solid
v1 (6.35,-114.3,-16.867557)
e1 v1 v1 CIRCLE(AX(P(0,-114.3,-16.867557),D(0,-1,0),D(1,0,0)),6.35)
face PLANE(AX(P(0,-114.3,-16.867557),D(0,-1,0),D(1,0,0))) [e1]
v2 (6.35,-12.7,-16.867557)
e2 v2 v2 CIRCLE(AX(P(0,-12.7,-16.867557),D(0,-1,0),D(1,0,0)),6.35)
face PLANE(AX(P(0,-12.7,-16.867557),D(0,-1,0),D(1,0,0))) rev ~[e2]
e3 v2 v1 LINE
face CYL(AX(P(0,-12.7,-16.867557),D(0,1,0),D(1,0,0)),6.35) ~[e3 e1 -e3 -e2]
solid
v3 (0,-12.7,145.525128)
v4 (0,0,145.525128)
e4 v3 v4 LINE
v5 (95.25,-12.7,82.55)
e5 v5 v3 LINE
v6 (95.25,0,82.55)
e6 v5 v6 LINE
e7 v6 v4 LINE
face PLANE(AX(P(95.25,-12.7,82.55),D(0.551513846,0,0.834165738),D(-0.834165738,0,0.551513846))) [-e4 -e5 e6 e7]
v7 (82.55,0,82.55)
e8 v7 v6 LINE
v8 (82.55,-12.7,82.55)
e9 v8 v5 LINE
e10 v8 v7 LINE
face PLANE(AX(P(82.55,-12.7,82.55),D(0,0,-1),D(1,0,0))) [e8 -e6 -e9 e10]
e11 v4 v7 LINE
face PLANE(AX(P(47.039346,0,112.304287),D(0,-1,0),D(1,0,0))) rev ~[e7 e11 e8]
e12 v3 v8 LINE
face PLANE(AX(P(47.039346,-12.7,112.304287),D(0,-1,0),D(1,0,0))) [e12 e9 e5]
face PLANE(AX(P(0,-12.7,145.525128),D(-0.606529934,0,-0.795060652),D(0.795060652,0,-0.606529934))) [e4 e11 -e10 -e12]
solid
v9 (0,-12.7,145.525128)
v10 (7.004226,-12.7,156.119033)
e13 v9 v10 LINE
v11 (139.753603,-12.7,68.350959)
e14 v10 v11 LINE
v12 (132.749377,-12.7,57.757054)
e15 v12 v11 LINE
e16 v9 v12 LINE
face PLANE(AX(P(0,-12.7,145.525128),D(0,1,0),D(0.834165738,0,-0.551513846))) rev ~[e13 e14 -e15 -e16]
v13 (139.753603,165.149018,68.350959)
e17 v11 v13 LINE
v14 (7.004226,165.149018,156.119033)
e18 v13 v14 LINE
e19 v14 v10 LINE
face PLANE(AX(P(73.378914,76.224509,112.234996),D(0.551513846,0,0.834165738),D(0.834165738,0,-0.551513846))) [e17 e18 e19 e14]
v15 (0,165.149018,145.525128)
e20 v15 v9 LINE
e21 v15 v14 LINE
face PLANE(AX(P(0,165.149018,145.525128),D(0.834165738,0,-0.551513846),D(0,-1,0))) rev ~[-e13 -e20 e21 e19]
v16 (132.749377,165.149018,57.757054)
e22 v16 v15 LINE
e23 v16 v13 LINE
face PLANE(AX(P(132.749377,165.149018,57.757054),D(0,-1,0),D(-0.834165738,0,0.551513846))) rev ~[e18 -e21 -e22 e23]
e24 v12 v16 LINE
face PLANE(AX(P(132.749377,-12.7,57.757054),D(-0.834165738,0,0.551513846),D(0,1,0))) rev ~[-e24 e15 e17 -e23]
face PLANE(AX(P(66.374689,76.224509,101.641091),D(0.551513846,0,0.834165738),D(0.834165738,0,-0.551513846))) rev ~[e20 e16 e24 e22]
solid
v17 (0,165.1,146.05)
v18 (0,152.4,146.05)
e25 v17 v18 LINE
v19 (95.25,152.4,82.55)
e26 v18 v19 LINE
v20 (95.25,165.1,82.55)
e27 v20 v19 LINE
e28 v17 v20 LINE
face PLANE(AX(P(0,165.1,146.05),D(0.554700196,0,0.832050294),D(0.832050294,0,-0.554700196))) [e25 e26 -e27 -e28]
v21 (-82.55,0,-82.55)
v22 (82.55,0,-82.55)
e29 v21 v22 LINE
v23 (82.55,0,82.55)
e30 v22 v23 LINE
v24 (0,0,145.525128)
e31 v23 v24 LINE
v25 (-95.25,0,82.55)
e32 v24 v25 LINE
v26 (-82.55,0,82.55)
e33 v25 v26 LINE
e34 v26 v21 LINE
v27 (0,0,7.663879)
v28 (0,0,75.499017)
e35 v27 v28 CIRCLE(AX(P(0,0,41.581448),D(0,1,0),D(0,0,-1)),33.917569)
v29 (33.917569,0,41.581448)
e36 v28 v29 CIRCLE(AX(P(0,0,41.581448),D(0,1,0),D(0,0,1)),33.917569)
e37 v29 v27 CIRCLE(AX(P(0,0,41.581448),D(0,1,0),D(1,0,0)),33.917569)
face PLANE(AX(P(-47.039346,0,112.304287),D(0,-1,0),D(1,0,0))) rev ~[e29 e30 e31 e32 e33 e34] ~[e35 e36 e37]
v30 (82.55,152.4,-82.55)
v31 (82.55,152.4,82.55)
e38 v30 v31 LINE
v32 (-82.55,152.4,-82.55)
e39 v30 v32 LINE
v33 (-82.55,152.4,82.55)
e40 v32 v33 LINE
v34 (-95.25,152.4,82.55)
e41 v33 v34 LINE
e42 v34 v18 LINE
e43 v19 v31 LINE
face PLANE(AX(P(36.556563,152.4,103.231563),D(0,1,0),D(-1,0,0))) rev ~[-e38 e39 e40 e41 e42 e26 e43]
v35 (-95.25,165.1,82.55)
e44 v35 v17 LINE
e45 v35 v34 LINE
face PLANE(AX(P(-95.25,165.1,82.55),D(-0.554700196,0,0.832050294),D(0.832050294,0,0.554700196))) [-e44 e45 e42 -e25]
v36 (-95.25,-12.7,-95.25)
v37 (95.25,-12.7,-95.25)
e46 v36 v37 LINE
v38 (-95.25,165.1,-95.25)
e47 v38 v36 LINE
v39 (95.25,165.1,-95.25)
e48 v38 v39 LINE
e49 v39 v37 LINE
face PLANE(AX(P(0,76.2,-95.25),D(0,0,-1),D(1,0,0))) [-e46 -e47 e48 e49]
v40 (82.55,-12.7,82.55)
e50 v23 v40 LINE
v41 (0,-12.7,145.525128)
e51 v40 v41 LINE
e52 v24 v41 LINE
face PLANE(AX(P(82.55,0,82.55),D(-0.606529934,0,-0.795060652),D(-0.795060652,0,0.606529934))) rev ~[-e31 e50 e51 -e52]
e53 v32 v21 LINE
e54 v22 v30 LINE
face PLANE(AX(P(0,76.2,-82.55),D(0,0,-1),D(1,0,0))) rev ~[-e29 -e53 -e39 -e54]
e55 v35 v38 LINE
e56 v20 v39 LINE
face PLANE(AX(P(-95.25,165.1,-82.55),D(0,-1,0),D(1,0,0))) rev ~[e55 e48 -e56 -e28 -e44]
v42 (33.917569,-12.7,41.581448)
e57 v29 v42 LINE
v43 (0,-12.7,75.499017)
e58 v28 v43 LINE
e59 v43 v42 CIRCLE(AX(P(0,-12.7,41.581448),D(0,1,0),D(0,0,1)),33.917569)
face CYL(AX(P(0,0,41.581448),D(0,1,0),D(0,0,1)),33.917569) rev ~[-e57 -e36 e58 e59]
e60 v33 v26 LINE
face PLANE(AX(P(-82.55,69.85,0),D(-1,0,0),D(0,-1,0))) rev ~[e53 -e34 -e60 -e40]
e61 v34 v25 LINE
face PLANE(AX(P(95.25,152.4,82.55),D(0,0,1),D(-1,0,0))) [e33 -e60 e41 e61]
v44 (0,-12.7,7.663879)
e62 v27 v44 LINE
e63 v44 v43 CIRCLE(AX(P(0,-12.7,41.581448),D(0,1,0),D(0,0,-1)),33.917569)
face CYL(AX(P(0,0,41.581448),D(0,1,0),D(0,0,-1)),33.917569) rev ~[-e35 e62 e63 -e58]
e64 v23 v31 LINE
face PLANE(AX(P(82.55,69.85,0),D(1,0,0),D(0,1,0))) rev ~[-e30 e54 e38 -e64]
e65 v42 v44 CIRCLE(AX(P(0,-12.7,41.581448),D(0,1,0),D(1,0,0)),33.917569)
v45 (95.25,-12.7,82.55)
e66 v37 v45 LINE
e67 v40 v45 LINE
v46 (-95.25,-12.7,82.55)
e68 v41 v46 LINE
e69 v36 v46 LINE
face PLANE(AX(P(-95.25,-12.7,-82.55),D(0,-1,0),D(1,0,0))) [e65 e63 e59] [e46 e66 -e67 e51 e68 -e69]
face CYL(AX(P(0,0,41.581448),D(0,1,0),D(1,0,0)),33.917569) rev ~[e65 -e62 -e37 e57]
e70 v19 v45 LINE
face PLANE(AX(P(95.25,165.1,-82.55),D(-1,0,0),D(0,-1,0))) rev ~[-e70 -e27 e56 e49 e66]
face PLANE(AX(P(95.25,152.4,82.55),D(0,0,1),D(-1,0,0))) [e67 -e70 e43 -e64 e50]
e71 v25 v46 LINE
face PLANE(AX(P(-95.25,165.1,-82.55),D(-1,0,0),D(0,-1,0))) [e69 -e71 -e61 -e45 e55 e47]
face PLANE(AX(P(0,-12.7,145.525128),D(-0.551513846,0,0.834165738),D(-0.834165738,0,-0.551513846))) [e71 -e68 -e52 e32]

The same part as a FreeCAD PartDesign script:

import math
import FreeCAD as App
import Part
import Sketcher
from FreeCAD import Vector
Q = App.Units.Quantity


def add_polygon(sketch, points):
    """Adds a closed chain of lines whose ends are joined by coincident constraints."""
    first, n = sketch.GeometryCount, len(points)
    for a, b in zip(points, points[1:] + points[:1]):
        sketch.addGeometry(Part.LineSegment(App.Vector(*a, 0), App.Vector(*b, 0)), False)
    for i in range(n):
        sketch.addConstraint(Sketcher.Constraint("Coincident", first + i, 2, first + (i + 1) % n, 1))

doc = App.newDocument("Part")
body = doc.addObject("PartDesign::Body", "Body")

# Sketch on XZ plane
sketch1 = body.newObject("Sketcher::SketchObject", "Sketch")
sketch1.AttachmentSupport = (doc.getObject("XZ_Plane"), [""])
sketch1.MapMode = "FlatFace"
add_polygon(sketch1, [(-83, 83), (-83, -83), (83, -83), (83, 83), (0, 146)])  # lines 0-4
sketch1.addGeometry(Part.ArcOfCircle(Part.Circle(Vector(0, 42, 0), Vector(0, 0, 1), 34), math.radians(-90), math.radians(0)), False)  # 5
sketch1.addGeometry(Part.ArcOfCircle(Part.Circle(Vector(0, 42, 0), Vector(0, 0, 1), 34), math.radians(90), math.radians(270)), False)  # 6
sketch1.addGeometry(Part.ArcOfCircle(Part.Circle(Vector(0, 42, 0), Vector(0, 0, 1), 34), math.radians(0), math.radians(90)), False)  # 7
sketch1.addConstraint([
    Sketcher.Constraint("Tangent", 5, 1, 6, 2),
    Sketcher.Constraint("Tangent", 6, 1, 7, 2),
    Sketcher.Constraint("Tangent", 7, 1, 5, 2),
    Sketcher.Constraint("Vertical", 0),
    Sketcher.Constraint("Horizontal", 1),
    Sketcher.Constraint("Vertical", 2),
    Sketcher.Constraint("Symmetric", 0, 2, 2, 2, -1, 1),
    Sketcher.Constraint("PointOnObject", 5, 3, -2),
    Sketcher.Constraint("PointOnObject", 3, 2, -2),
    Sketcher.Constraint("PointOnObject", 5, 1, -2),
    Sketcher.Constraint("PointOnObject", 6, 1, -2),
    Sketcher.Constraint("Horizontal", 2, 2, 4, 2),
    Sketcher.Constraint("Horizontal", 6, 3, 7, 1),
    Sketcher.Constraint("Equal", 1, 0),
    Sketcher.Constraint("DistanceX", 1, 1, 1, 2, Q("6.5 in")),
    Sketcher.Constraint("Radius", 5, Q("33.917569 mm")),
    Sketcher.Constraint("DistanceY", -1, 1, 5, 3, Q("41.581448 mm")),
    Sketcher.Constraint("DistanceY", 5, 3, 3, 2, Q("103.943679 mm")),
])
pad1 = body.newObject("PartDesign::Pad", "Pad")
pad1.Profile = sketch1
pad1.Length = Q("0.5 in")

# Sketch on YZ plane
sketch2 = body.newObject("Sketcher::SketchObject", "Sketch001")
sketch2.AttachmentSupport = (doc.getObject("YZ_Plane"), [""])
sketch2.MapMode = "FlatFace"
sketch2.AttachmentOffset = App.Placement(Vector(0, 0, 3.25 * 25.4), App.Rotation())
add_polygon(sketch2, [(-13, 83), (-13, -83), (152, -83), (152, 83)])  # lines 0-3
sketch2.addConstraint([
    Sketcher.Constraint("Vertical", 0),
    Sketcher.Constraint("Horizontal", 1),
    Sketcher.Constraint("Vertical", 2),
    Sketcher.Constraint("Horizontal", 3),
    Sketcher.Constraint("Equal", 3, 0),
    Sketcher.Constraint("DistanceX", 1, 1, 1, 2, Q("6.5 in")),
    Sketcher.Constraint("DistanceX", -1, 1, 1, 2, Q("6 in")),
    Sketcher.Constraint("DistanceY", 0, 2, -1, 1, Q("3.25 in")),
])
pad2 = body.newObject("PartDesign::Pad", "Pad001")
pad2.Profile = sketch2
pad2.Length = Q("0.5 in")

# Sketch on YZ plane
sketch3 = body.newObject("Sketcher::SketchObject", "Sketch002")
sketch3.AttachmentSupport = (doc.getObject("YZ_Plane"), [""])
sketch3.MapMode = "FlatFace"
sketch3.AttachmentOffset = App.Placement(Vector(0, 0, -3.25 * 25.4), App.Rotation())
add_polygon(sketch3, [(152, 83), (152, -83), (-13, -83), (-13, 83)])  # lines 0-3
sketch3.addConstraint([
    Sketcher.Constraint("Vertical", 0),
    Sketcher.Constraint("Horizontal", 1),
    Sketcher.Constraint("Vertical", 2),
    Sketcher.Constraint("Horizontal", 3),
    Sketcher.Constraint("Equal", 3, 0),
    Sketcher.Constraint("DistanceX", 1, 2, 1, 1, Q("6.5 in")),
    Sketcher.Constraint("DistanceX", -1, 1, 0, 2, Q("6 in")),
    Sketcher.Constraint("DistanceY", 0, 2, -1, 1, Q("3.25 in")),
])
pad3 = body.newObject("PartDesign::Pad", "Pad002")
pad3.Profile = sketch3
pad3.Length = Q("0.5 in")
pad3.Reversed = True

# Sketch on XZ plane
sketch4 = body.newObject("Sketcher::SketchObject", "Sketch003")
sketch4.AttachmentSupport = (doc.getObject("XZ_Plane"), [""])
sketch4.MapMode = "FlatFace"
sketch4.AttachmentOffset = App.Placement(Vector(0, 0, -6 * 25.4), App.Rotation())
add_polygon(sketch4, [(95, 83), (95, -83), (-95, -83), (-95, 83)])  # lines 0-3
sketch4.addConstraint([
    Sketcher.Constraint("Vertical", 0),
    Sketcher.Constraint("Horizontal", 1),
    Sketcher.Constraint("Vertical", 2),
    Sketcher.Constraint("Horizontal", 3),
    Sketcher.Constraint("Symmetric", 0, 2, 2, 2, -1, 1),
    Sketcher.Constraint("DistanceX", 1, 2, 1, 1, Q("7.5 in")),
    Sketcher.Constraint("DistanceY", 0, 2, 0, 1, Q("6.5 in")),
])
pad4 = body.newObject("PartDesign::Pad", "Pad003")
pad4.Profile = sketch4
pad4.Length = Q("0.5 in")
pad4.Reversed = True

# Sketch on XZ plane
sketch5 = body.newObject("Sketcher::SketchObject", "Sketch004")
sketch5.AttachmentSupport = (doc.getObject("XZ_Plane"), [""])
sketch5.MapMode = "FlatFace"
sketch5.AttachmentOffset = App.Placement(Vector(0, 0, 0.5 * 25.4), App.Rotation())
add_polygon(sketch5, [(-83, 83), (0, 146), (-95, 83)])  # lines 0-2
sketch5.addConstraint([
    Sketcher.Constraint("Horizontal", 2),
    Sketcher.Constraint("PointOnObject", 0, 2, -2),
    Sketcher.Constraint("DistanceX", 2, 1, 2, 2, Q("0.5 in")),
    Sketcher.Constraint("DistanceX", 1, 2, -1, 1, Q("3.75 in")),
    Sketcher.Constraint("DistanceY", -1, 1, 1, 2, Q("3.25 in")),
    Sketcher.Constraint("Distance", 1, Q("114.185941 mm")),
])
pad5 = body.newObject("PartDesign::Pad", "Pad004")
pad5.Profile = sketch5
pad5.Length = Q("0.5 in")
pad5.Reversed = True

# Sketch on XZ plane
sketch6 = body.newObject("Sketcher::SketchObject", "Sketch005")
sketch6.AttachmentSupport = (doc.getObject("XZ_Plane"), [""])
sketch6.MapMode = "FlatFace"
sketch6.AttachmentOffset = App.Placement(Vector(0, 0, -6.5 * 25.4), App.Rotation())
add_polygon(sketch6, [(95, 83), (-95, 83), (0, 146)])  # lines 0-2
sketch6.addConstraint([
    Sketcher.Constraint("Horizontal", 0),
    Sketcher.Constraint("PointOnObject", 1, 2, -2),
    Sketcher.Constraint("Equal", 1, 2),
    Sketcher.Constraint("DistanceX", 0, 2, 0, 1, Q("7.5 in")),
    Sketcher.Constraint("DistanceY", 0, 2, 1, 2, Q("2.5 in")),
    Sketcher.Constraint("DistanceY", -1, 1, 0, 2, Q("3.25 in")),
])
pad6 = body.newObject("PartDesign::Pad", "Pad005")
pad6.Profile = sketch6
pad6.Length = Q("0.5 in")

# Sketch on XY plane
sketch7 = body.newObject("Sketcher::SketchObject", "Sketch006")
sketch7.AttachmentSupport = (doc.getObject("XY_Plane"), [""])
sketch7.MapMode = "FlatFace"
sketch7.AttachmentOffset = App.Placement(Vector(0, 0, -3.25 * 25.4), App.Rotation())
add_polygon(sketch7, [(-95, -13), (-95, 165), (95, 165), (95, -13)])  # lines 0-3
sketch7.addConstraint([
    Sketcher.Constraint("Vertical", 0),
    Sketcher.Constraint("Horizontal", 1),
    Sketcher.Constraint("Vertical", 2),
    Sketcher.Constraint("Horizontal", 3),
    Sketcher.Constraint("DistanceY", 0, 1, 0, 2, Q("7 in")),
    Sketcher.Constraint("DistanceX", 1, 1, 1, 2, Q("7.5 in")),
    Sketcher.Constraint("DistanceY", -1, 1, 0, 2, Q("6.5 in")),
    Sketcher.Constraint("DistanceX", 0, 2, -1, 1, Q("3.75 in")),
])
pad7 = body.newObject("PartDesign::Pad", "Pad006")
pad7.Profile = sketch7
pad7.Length = Q("0.5 in")
pad7.Reversed = True
body2 = doc.addObject("PartDesign::Body", "Body001")

# Sketch on XZ plane
sketch8 = body2.newObject("Sketcher::SketchObject", "Sketch007")
sketch8.AttachmentSupport = (doc.getObject("XZ_Plane001"), [""])
sketch8.MapMode = "FlatFace"
sketch8.AttachmentOffset = App.Placement(Vector(0, 0, 0.5 * 25.4), App.Rotation())
sketch8.addGeometry(Part.Circle(Vector(0, -17, 0), Vector(0, 0, 1), 6), False)
sketch8.addConstraint([
    Sketcher.Constraint("PointOnObject", 0, 3, -2),
    Sketcher.Constraint("Diameter", 0, Q("0.5 in")),
    Sketcher.Constraint("DistanceY", 0, 3, -1, 1, Q("16.867557 mm")),
])
pad8 = body2.newObject("PartDesign::Pad", "Pad007")
pad8.Profile = sketch8
pad8.Length = Q("4 in")
body3 = doc.addObject("PartDesign::Body", "Body002")

# Sketch on XZ plane
sketch9 = body3.newObject("Sketcher::SketchObject", "Sketch008")
sketch9.AttachmentSupport = (doc.getObject("XZ_Plane002"), [""])
sketch9.MapMode = "FlatFace"
sketch9.AttachmentOffset = App.Placement(Vector(0, 0, 0.5 * 25.4), App.Rotation())
add_polygon(sketch9, [(95, 83), (0, 146), (83, 83)])  # lines 0-2
sketch9.addConstraint([
    Sketcher.Constraint("Horizontal", 2),
    Sketcher.Constraint("PointOnObject", 0, 2, -2),
    Sketcher.Constraint("DistanceX", 2, 1, 2, 2, Q("0.5 in")),
    Sketcher.Constraint("DistanceX", -1, 1, 1, 2, Q("3.25 in")),
    Sketcher.Constraint("DistanceY", -1, 1, 1, 2, Q("3.25 in")),
    Sketcher.Constraint("Distance", 0, Q("114.185941 mm")),
])
pad9 = body3.newObject("PartDesign::Pad", "Pad008")
pad9.Profile = sketch9
pad9.Length = Q("0.5 in")
pad9.Reversed = True
body4 = doc.addObject("PartDesign::Body", "Body003")

# Sketch on an angled plane
sketch10 = body4.newObject("Sketcher::SketchObject", "Sketch009")
sketch10.Placement = App.Placement(Vector(66.94941, 0, 101.26111), App.Rotation(Vector(0.834165738, 0, -0.551513846), Vector(0, 1.000000001, 0), Vector(0.551513846, 0, 0.834165738), "ZXY"))
add_polygon(sketch10, [(-80, 165), (-80, -13), (79, -13), (79, 165)])  # lines 0-3
sketch10.addConstraint([
    Sketcher.Constraint("Vertical", 0),
    Sketcher.Constraint("Horizontal", 1),
    Sketcher.Constraint("Vertical", 2),
    Sketcher.Constraint("Horizontal", 3),
    Sketcher.Constraint("DistanceY", 0, 2, -1, 1, Q("0.5 in")),
    Sketcher.Constraint("DistanceX", 1, 1, 1, 2, Q("159.14029 mm")),
    Sketcher.Constraint("DistanceY", 0, 2, 0, 1, Q("177.849018 mm")),
    Sketcher.Constraint("DistanceX", 0, 2, -1, 1, Q("80.259123 mm")),
])
pad10 = body4.newObject("PartDesign::Pad", "Pad009")
pad10.Profile = sketch10
pad10.Length = Q("0.5 in")

doc.recompute()
